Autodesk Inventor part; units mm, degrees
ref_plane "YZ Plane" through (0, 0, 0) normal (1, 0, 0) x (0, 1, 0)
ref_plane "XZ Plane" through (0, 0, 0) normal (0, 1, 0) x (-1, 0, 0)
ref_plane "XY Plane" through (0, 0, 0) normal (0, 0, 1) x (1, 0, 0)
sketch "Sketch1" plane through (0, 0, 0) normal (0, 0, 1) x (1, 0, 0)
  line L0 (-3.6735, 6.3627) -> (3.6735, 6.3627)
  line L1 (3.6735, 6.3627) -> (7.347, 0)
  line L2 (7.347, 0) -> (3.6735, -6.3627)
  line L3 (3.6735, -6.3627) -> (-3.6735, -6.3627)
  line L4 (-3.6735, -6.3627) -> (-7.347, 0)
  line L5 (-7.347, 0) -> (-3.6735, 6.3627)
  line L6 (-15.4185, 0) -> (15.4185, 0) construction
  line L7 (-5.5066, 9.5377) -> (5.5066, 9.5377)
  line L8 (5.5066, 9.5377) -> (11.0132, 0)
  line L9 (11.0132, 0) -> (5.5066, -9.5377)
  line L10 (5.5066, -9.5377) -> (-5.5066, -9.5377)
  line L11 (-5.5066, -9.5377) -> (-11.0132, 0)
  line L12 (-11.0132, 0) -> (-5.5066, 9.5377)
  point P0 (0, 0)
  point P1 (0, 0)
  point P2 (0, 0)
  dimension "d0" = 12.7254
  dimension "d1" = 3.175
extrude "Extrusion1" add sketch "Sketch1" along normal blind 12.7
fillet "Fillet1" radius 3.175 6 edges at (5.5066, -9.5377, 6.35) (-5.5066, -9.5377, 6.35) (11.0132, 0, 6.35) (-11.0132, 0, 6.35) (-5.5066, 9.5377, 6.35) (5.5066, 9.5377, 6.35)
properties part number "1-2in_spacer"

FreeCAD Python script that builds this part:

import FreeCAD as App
import Part
import Sketcher
Q = App.Units.Quantity


def edges_at(feature, points):
    """Names of the edges that pass closest to the given points."""
    edges = feature.Shape.Edges
    near = lambda p: min(range(len(edges)), key=lambda i: edges[i].distToShape(Part.Vertex(*p))[0])
    return sorted({f"Edge{near(p) + 1}" for p in points})


def add_polygon(sketch, points):
    """Adds a closed chain of lines whose ends are joined by coincident constraints."""
    first, n = sketch.GeometryCount, len(points)
    for a, b in zip(points, points[1:] + points[:1]):
        sketch.addGeometry(Part.LineSegment(App.Vector(*a, 0), App.Vector(*b, 0)), False)
    for i in range(n):
        sketch.addConstraint(Sketcher.Constraint("Coincident", first + i, 2, first + (i + 1) % n, 1))

doc = App.newDocument("Part")
body = doc.addObject("PartDesign::Body", "Body")

# Sketch on XY plane
sketch1 = body.newObject("Sketcher::SketchObject", "Sketch")
sketch1.AttachmentSupport = (doc.getObject("XY_Plane"), [""])
sketch1.MapMode = "FlatFace"
add_polygon(sketch1, [(5.5066, 9.5377), (-5.5066, 9.5377), (-11.0132, 0), (-5.5066, -9.5377), (5.5066, -9.5377), (11.0132, 0)])  # lines 0-5
add_polygon(sketch1, [(-7.347, 0), (-3.6735, 6.3627), (3.6735, 6.3627), (7.347, 0), (3.6735, -6.3627), (-3.6735, -6.3627)])  # lines 6-11
sketch1.addConstraint([
    Sketcher.Constraint("Horizontal", 0),
    Sketcher.Constraint("Horizontal", 3),
    Sketcher.Constraint("Horizontal", 7),
    Sketcher.Constraint("Horizontal", 10),
    Sketcher.Constraint("Symmetric", 0, 2, 3, 2, -1, 1),
    Sketcher.Constraint("Symmetric", 1, 2, 4, 2, -1, 1),
    Sketcher.Constraint("Symmetric", 6, 2, 9, 2, -1, 1),
    Sketcher.Constraint("Symmetric", 8, 2, 11, 2, -1, 1),
    Sketcher.Constraint("PointOnObject", 1, 2, -1),
    Sketcher.Constraint("PointOnObject", 8, 2, -1),
    Sketcher.Constraint("Parallel", 2, 5),
    Sketcher.Constraint("Parallel", 4, 6),
    Sketcher.Constraint("Parallel", 5, 8),
    Sketcher.Constraint("Parallel", 8, 11),
    Sketcher.Constraint("Vertical", 0, 2, 2, 2),
    Sketcher.Constraint("Angle", 1, Q("-120 deg")),
    Sketcher.Constraint("DistanceY", 6, 2, 0, 2, Q("0.125 in")),
    Sketcher.Constraint("DistanceY", 9, 2, 7, 2, Q("0.501 in")),
    Sketcher.Constraint("DistanceX", 0, 2, 0, 1, Q("0.4336 in")),
    Sketcher.Constraint("DistanceX", 7, 1, 7, 2, Q("7.347 mm")),
])
pad1 = body.newObject("PartDesign::Pad", "Pad")
pad1.Profile = sketch1
pad1.Length = Q("0.5 in")
doc.recompute()

fillet = body.newObject("PartDesign::Fillet", "Fillet")
fillet.Base = (pad1, edges_at(pad1, [
    (5.507, -9.538, 6.35),
    (-5.507, -9.538, 6.35),
    (11.013, 0, 6.35),
    (-11.013, 0, 6.35),
    (-5.507, 9.538, 6.35),
    (5.507, 9.538, 6.35),
]))
fillet.Radius = Q("0.125 in")

doc.recompute()
